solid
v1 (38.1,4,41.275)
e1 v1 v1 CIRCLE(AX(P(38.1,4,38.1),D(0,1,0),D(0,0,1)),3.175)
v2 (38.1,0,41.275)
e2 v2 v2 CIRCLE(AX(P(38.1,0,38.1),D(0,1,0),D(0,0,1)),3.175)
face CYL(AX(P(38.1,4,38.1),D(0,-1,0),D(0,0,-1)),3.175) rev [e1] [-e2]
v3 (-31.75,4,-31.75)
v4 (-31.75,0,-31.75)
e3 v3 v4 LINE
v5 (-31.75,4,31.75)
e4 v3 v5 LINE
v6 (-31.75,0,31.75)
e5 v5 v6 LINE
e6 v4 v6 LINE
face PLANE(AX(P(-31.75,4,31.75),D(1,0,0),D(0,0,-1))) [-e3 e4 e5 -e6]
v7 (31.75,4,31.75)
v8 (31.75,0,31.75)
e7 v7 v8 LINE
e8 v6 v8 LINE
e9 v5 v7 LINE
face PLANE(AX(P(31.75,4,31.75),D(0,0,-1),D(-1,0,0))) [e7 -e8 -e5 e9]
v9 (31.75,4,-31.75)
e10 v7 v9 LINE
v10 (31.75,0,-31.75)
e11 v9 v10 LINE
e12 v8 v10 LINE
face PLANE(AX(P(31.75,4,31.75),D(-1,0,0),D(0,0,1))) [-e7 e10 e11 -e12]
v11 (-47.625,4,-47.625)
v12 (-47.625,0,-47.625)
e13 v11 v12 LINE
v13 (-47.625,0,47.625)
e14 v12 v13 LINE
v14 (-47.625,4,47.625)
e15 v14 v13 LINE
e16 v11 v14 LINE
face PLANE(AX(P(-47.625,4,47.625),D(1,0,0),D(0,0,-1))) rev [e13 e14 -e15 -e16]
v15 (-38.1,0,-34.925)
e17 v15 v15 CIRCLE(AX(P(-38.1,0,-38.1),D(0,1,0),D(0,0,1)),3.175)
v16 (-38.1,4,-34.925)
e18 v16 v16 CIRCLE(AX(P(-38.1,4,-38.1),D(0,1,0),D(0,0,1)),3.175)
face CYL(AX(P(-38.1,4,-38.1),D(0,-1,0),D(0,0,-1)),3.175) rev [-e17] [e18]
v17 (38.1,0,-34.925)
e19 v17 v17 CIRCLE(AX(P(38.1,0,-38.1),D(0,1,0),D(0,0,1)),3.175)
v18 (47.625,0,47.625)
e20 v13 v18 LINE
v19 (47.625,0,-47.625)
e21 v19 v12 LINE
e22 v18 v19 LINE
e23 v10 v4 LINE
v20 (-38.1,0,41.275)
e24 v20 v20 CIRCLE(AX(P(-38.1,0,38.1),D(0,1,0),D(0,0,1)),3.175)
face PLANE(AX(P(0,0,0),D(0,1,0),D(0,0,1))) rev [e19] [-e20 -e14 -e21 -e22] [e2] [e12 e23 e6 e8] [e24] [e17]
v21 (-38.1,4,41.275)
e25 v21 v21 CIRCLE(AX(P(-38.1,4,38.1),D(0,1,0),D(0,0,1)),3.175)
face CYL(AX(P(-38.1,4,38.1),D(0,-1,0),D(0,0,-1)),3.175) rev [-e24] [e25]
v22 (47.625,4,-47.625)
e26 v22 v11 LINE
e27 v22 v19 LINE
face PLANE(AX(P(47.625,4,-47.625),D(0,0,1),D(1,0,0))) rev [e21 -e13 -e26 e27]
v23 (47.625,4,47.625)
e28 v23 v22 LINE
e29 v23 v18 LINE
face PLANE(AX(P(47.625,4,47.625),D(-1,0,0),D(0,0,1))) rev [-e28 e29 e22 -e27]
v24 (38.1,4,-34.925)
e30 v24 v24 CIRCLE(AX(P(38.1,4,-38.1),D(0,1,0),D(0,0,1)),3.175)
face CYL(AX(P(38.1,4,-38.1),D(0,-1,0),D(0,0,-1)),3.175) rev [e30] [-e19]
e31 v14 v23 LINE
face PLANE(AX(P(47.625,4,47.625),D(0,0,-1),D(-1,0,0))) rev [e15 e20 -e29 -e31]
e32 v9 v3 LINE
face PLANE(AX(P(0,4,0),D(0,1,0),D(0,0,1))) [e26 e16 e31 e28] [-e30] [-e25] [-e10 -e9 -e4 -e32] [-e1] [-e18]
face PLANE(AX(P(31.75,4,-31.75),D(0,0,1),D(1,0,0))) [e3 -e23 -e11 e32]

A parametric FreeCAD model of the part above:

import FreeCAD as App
import Part
import Sketcher
from FreeCAD import Vector
Q = App.Units.Quantity


def add_polygon(sketch, points):
    """Adds a closed chain of lines whose ends are joined by coincident constraints."""
    first, n = sketch.GeometryCount, len(points)
    for a, b in zip(points, points[1:] + points[:1]):
        sketch.addGeometry(Part.LineSegment(App.Vector(*a, 0), App.Vector(*b, 0)), False)
    for i in range(n):
        sketch.addConstraint(Sketcher.Constraint("Coincident", first + i, 2, first + (i + 1) % n, 1))

doc = App.newDocument("Part")
body = doc.addObject("PartDesign::Body", "Body")

# Sketch on XZ plane
sketch1 = body.newObject("Sketcher::SketchObject", "Sketch")
sketch1.AttachmentSupport = (doc.getObject("XZ_Plane"), [""])
sketch1.MapMode = "FlatFace"
add_polygon(sketch1, [(-47.6, -47.6), (-47.6, 47.6), (47.6, 47.6), (47.6, -47.6)])  # lines 0-3
sketch1.addGeometry(Part.Circle(Vector(-38.1, 38.1, 0), Vector(0, 0, 1), 3.2), False)  # 4
sketch1.addGeometry(Part.Circle(Vector(38.1, 38.1, 0), Vector(0, 0, 1), 3.2), False)  # 5
sketch1.addGeometry(Part.Circle(Vector(-38.1, -38.1, 0), Vector(0, 0, 1), 3.2), False)  # 6
add_polygon(sketch1, [(31.8, 31.8), (-31.8, 31.8), (-31.8, -31.8), (31.8, -31.8)])  # lines 7-10
sketch1.addGeometry(Part.Circle(Vector(38.1, -38.1, 0), Vector(0, 0, 1), 3.2), False)  # 11
sketch1.addConstraint([
    Sketcher.Constraint("Vertical", 0),
    Sketcher.Constraint("Horizontal", 1),
    Sketcher.Constraint("Vertical", 2),
    Sketcher.Constraint("Horizontal", 3),
    Sketcher.Constraint("Horizontal", 7),
    Sketcher.Constraint("Vertical", 8),
    Sketcher.Constraint("Horizontal", 9),
    Sketcher.Constraint("Vertical", 10),
    Sketcher.Constraint("Equal", 4, 5),
    Sketcher.Constraint("Equal", 5, 6),
    Sketcher.Constraint("Equal", 6, 11),
    Sketcher.Constraint("Symmetric", 5, 3, 6, 3, -1, 1),
    Sketcher.Constraint("Symmetric", 4, 3, 11, 3, -1, 1),
    Sketcher.Constraint("Symmetric", 0, 2, 2, 2, -1, 1),
    Sketcher.Constraint("Symmetric", 7, 2, 9, 2, -1, 1),
    Sketcher.Constraint("Symmetric", 4, 3, 5, 3, -2),
    Sketcher.Constraint("Equal", 3, 0),
    Sketcher.Constraint("Equal", 9, 8),
    Sketcher.Constraint("Diameter", 4, Q("0.25 in")),
    Sketcher.Constraint("DistanceX", 7, 2, 7, 1, Q("2.5 in")),
    Sketcher.Constraint("DistanceX", 4, 3, 5, 3, Q("3 in")),
    Sketcher.Constraint("DistanceY", 6, 3, 4, 3, Q("3 in")),
    Sketcher.Constraint("DistanceX", 1, 1, 1, 2, Q("3.75 in")),
])
pad1 = body.newObject("PartDesign::Pad", "Pad")
pad1.Profile = sketch1
pad1.Length = 4
pad1.Reversed = True

doc.recompute()
